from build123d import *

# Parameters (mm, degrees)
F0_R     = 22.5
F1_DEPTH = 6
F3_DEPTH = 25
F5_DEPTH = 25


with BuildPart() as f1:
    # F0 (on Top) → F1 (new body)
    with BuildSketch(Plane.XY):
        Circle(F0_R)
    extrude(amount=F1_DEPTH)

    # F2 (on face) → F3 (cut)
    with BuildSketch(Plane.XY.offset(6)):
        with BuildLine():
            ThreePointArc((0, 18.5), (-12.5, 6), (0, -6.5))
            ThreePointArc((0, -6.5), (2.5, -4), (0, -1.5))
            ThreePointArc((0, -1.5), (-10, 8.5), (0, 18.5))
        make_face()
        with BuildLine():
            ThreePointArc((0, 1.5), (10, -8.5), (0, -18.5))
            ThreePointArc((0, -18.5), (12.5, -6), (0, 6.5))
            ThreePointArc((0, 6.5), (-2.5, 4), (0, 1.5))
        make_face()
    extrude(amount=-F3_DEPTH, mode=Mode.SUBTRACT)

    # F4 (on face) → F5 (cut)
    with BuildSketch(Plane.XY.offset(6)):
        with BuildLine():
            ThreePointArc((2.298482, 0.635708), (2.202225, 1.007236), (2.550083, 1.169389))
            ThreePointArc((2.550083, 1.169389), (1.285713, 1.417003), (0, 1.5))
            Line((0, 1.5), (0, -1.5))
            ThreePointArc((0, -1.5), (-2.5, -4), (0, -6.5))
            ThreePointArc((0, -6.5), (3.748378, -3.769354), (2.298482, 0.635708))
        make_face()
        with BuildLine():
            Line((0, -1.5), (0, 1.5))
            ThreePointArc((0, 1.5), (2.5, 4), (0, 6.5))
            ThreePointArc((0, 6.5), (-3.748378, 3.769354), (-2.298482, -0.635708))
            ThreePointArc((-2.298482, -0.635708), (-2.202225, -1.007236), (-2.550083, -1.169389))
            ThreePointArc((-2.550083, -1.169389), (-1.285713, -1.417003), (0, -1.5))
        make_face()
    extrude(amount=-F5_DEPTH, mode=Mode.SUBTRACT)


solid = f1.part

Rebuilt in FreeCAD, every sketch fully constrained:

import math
import FreeCAD as App
import Part
import Sketcher
from FreeCAD import Vector

doc = App.newDocument("Part")
body = doc.addObject("PartDesign::Body", "Body")

# Sketch on XY plane
sketch1 = body.newObject("Sketcher::SketchObject", "Sketch")
sketch1.AttachmentSupport = (doc.getObject("XY_Plane"), [""])
sketch1.MapMode = "FlatFace"
sketch1.addGeometry(Part.Circle(Vector(0, 0, 0), Vector(0, 0, 1), 22), False)
sketch1.addConstraint([
    Sketcher.Constraint("Coincident", 0, 3, -1, 1),
    Sketcher.Constraint("Diameter", 0, 45.0),
])
pad1 = body.newObject("PartDesign::Pad", "Pad")
pad1.Profile = sketch1
pad1.Length = 6

# Sketch on XY plane
sketch2 = body.newObject("Sketcher::SketchObject", "Sketch001")
sketch2.AttachmentSupport = (doc.getObject("XY_Plane"), [""])
sketch2.MapMode = "FlatFace"
sketch2.AttachmentOffset = App.Placement(Vector(0, 0, 6), App.Rotation())
sketch2.addGeometry([
    Part.ArcOfCircle(Part.Circle(Vector(0, 6, 0), Vector(0, 0, 1), 12.5), math.radians(90), math.radians(270)),  # 0
    Part.ArcOfCircle(Part.Circle(Vector(0, -4, 0), Vector(0, 0, 1), 2.5), math.radians(-90), math.radians(90)),  # 1
    Part.ArcOfCircle(Part.Circle(Vector(0, 8.5, 0), Vector(0, 0, 1), 10), math.radians(90), math.radians(270)),  # 2
    Part.ArcOfCircle(Part.Circle(Vector(0, -8.5, 0), Vector(0, 0, 1), 10), math.radians(-90), math.radians(90)),  # 3
    Part.ArcOfCircle(Part.Circle(Vector(0, -6, 0), Vector(0, 0, 1), 12.5), math.radians(-90), math.radians(90)),  # 4
    Part.ArcOfCircle(Part.Circle(Vector(0, 4, 0), Vector(0, 0, 1), 2.5), math.radians(90), math.radians(270)),  # 5
], False)
sketch2.addConstraint([
    Sketcher.Constraint("Tangent", 0, 2, 1, 1),
    Sketcher.Constraint("Tangent", 1, 2, 2, 2),
    Sketcher.Constraint("Tangent", 2, 1, 0, 1),
    Sketcher.Constraint("Tangent", 3, 1, 4, 1),
    Sketcher.Constraint("Tangent", 4, 2, 5, 1),
    Sketcher.Constraint("Tangent", 5, 2, 3, 2),
    Sketcher.Constraint("Equal", 2, 3),
    Sketcher.Constraint("Equal", 0, 4),
    Sketcher.Constraint("Symmetric", 2, 3, 3, 3, -1, 1),
    Sketcher.Constraint("PointOnObject", 0, 3, -2),
    Sketcher.Constraint("PointOnObject", 1, 3, -2),
    Sketcher.Constraint("PointOnObject", 2, 3, -2),
    Sketcher.Constraint("PointOnObject", 4, 3, -2),
    Sketcher.Constraint("PointOnObject", 5, 3, -2),
    Sketcher.Constraint("Radius", 2, 10.0),
    Sketcher.Constraint("Radius", 0, 12.5),
    Sketcher.Constraint("DistanceY", -1, 1, 0, 3, 6.0),
])
pocket1 = body.newObject("PartDesign::Pocket", "Pocket")
pocket1.Profile = sketch2
pocket1.Length = 25

# Sketch on XY plane
sketch3 = body.newObject("Sketcher::SketchObject", "Sketch002")
sketch3.AttachmentSupport = (doc.getObject("XY_Plane"), [""])
sketch3.MapMode = "FlatFace"
sketch3.AttachmentOffset = App.Placement(Vector(0, 0, 6), App.Rotation())
sketch3.addGeometry([
    Part.ArcOfCircle(Part.Circle(Vector(2.47, 0.88, 0), Vector(0, 0, 1), 0.3), math.radians(75), math.radians(234)),  # 0
    Part.ArcOfCircle(Part.Circle(Vector(0, -8.5, 0), Vector(0, 0, 1), 10), math.radians(75.23), math.radians(90)),  # 1
    Part.ArcOfCircle(Part.Circle(Vector(0, 4, 0), Vector(0, 0, 1), 2.5), math.radians(-90), math.radians(90)),  # 2
    Part.ArcOfCircle(Part.Circle(Vector(0, 2.56, 0), Vector(0, 0, 1), 3.94), math.radians(90), math.radians(234)),  # 3
    Part.ArcOfCircle(Part.Circle(Vector(-2.47, -0.88, 0), Vector(0, 0, 1), 0.3), math.radians(-105), math.radians(54)),  # 4
    Part.ArcOfCircle(Part.Circle(Vector(0, 8.5, 0), Vector(0, 0, 1), 10), math.radians(-104.77), math.radians(-90)),  # 5
    Part.ArcOfCircle(Part.Circle(Vector(0, -4, 0), Vector(0, 0, 1), 2.5), math.radians(90), math.radians(270)),  # 6
    Part.ArcOfCircle(Part.Circle(Vector(0, -2.56, 0), Vector(0, 0, 1), 3.94), math.radians(-90), math.radians(54)),  # 7
], False)
sketch3.addConstraint([
    Sketcher.Constraint("Coincident", 0, 1, 1, 1),
    Sketcher.Constraint("Tangent", 1, 2, 2, 1),
    Sketcher.Constraint("Tangent", 2, 2, 3, 1),
    Sketcher.Constraint("Coincident", 3, 2, 4, 2),
    Sketcher.Constraint("Coincident", 4, 1, 5, 1),
    Sketcher.Constraint("Tangent", 5, 2, 6, 1),
    Sketcher.Constraint("Tangent", 6, 2, 7, 1),
    Sketcher.Constraint("Coincident", 7, 2, 0, 2),
    Sketcher.Constraint("Equal", 0, 4),
    Sketcher.Constraint("Equal", 1, 5),
    Sketcher.Constraint("Equal", 2, 6),
    Sketcher.Constraint("Equal", 3, 7),
    Sketcher.Constraint("Symmetric", 0, 3, 4, 3, -1, 1),
    Sketcher.Constraint("Symmetric", 2, 3, 6, 3, -1, 1),
    Sketcher.Constraint("PointOnObject", 2, 3, -2),
    Sketcher.Constraint("PointOnObject", 3, 3, -2),
    Sketcher.Constraint("PointOnObject", 1, 2, -2),
    Sketcher.Constraint("Radius", 0, 0.3),
    Sketcher.Constraint("Radius", 2, 2.5),
    Sketcher.Constraint("DistanceY", -1, 1, 2, 3, 4.0),
    Sketcher.Constraint("Radius", 1, 9.999983),
    Sketcher.Constraint("Radius", 3, 3.938036),
    Sketcher.Constraint("DistanceX", 0, 3, 0, 1, 0.076502),
    Sketcher.Constraint("DistanceX", 4, 3, 3, 2, 0.175099),
    Sketcher.Constraint("DistanceX", 4, 1, 4, 3, 0.076502),
    Sketcher.Constraint("DistanceX", 7, 2, 0, 3, 0.175099),
])
pocket2 = body.newObject("PartDesign::Pocket", "Pocket001")
pocket2.Profile = sketch3
pocket2.Length = 25

doc.recompute()
